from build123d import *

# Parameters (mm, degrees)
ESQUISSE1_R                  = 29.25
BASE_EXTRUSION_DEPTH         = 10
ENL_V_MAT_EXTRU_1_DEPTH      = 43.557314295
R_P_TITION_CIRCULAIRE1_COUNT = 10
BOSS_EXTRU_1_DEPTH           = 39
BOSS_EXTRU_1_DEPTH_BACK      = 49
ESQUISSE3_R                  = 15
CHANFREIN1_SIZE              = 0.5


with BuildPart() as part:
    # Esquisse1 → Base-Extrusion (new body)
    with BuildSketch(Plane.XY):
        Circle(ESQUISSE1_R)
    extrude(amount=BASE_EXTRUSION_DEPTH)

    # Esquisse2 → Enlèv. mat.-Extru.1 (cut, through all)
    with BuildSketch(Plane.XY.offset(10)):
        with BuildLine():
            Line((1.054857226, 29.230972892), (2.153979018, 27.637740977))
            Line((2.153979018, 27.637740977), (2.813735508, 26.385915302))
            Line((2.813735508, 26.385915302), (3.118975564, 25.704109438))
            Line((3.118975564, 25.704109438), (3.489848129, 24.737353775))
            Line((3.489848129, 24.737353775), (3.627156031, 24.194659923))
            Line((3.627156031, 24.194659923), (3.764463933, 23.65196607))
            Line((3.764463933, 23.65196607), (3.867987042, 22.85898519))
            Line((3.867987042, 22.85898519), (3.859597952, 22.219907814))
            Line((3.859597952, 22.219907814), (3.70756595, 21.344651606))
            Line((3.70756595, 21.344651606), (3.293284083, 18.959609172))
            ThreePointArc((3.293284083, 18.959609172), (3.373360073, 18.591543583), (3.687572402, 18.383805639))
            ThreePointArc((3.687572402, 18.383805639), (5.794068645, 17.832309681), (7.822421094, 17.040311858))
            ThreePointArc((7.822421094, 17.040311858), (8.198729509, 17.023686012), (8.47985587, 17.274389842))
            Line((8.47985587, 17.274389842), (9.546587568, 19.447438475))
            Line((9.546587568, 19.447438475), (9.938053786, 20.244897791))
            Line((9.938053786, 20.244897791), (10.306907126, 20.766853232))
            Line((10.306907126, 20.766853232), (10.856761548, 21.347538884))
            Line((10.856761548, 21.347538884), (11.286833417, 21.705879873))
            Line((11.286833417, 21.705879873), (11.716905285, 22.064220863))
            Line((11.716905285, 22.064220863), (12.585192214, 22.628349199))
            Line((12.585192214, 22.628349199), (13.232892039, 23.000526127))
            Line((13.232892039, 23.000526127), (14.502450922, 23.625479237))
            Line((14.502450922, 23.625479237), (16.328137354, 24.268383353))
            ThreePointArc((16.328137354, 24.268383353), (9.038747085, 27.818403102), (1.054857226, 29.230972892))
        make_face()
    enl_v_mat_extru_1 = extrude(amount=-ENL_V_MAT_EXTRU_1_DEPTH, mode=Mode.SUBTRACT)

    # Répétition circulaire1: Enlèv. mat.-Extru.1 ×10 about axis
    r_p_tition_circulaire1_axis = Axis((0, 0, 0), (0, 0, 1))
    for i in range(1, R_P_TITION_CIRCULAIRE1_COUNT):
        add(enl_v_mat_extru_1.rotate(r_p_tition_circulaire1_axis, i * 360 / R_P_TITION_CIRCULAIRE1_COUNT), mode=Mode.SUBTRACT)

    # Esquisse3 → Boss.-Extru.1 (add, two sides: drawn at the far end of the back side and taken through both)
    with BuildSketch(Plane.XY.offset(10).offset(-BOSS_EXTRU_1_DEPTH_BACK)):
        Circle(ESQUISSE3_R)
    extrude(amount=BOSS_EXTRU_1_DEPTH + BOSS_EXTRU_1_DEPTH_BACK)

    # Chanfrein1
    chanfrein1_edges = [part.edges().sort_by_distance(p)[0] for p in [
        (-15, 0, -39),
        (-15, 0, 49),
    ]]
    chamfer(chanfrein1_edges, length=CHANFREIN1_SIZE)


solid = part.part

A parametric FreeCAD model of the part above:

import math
import FreeCAD as App
import Part
import Sketcher
Q = App.Units.Quantity


def edges_at(feature, points):
    """Names of the edges that pass closest to the given points."""
    edges = feature.Shape.Edges
    near = lambda p: min(range(len(edges)), key=lambda i: edges[i].distToShape(Part.Vertex(*p))[0])
    return sorted({f"Edge{near(p) + 1}" for p in points})

doc = App.newDocument("Part")
body = doc.addObject("PartDesign::Body", "Body")

# Sketch on XY plane
sketch1 = body.newObject("Sketcher::SketchObject", "Sketch")
sketch1.AttachmentSupport = (doc.getObject("XY_Plane"), [""])
sketch1.MapMode = "FlatFace"
sketch1.addGeometry(Part.Circle(App.Vector(0, 0, 0), App.Vector(0, 0, 1), 29.25), False)
sketch1.addConstraint([
    Sketcher.Constraint("Coincident", 0, 3, -1, 1),
    Sketcher.Constraint("Diameter", 0, Q("58.5 mm")),
])
pad1 = body.newObject("PartDesign::Pad", "Pad")
pad1.Profile = sketch1
pad1.Length = 10

# Sketch on XY plane
sketch2 = body.newObject("Sketcher::SketchObject", "Sketch001")
sketch2.AttachmentSupport = (doc.getObject("XY_Plane"), [""])
sketch2.MapMode = "FlatFace"
sketch2.AttachmentOffset = App.Placement(App.Vector(0, 0, 10), App.Rotation())
sketch2.addGeometry([
    Part.LineSegment(App.Vector(1.054857, 29.230973, 0), App.Vector(2.153979, 27.637741, 0)),  # 0
    Part.LineSegment(App.Vector(2.153979, 27.637741, 0), App.Vector(2.813736, 26.385915, 0)),  # 1
    Part.LineSegment(App.Vector(2.813736, 26.385915, 0), App.Vector(3.118976, 25.704109, 0)),  # 2
    Part.LineSegment(App.Vector(3.118976, 25.704109, 0), App.Vector(3.489848, 24.737354, 0)),  # 3
    Part.LineSegment(App.Vector(3.489848, 24.737354, 0), App.Vector(3.627156, 24.19466, 0)),  # 4
    Part.LineSegment(App.Vector(3.627156, 24.19466, 0), App.Vector(3.764464, 23.651966, 0)),  # 5
    Part.LineSegment(App.Vector(3.764464, 23.651966, 0), App.Vector(3.867987, 22.858985, 0)),  # 6
    Part.LineSegment(App.Vector(3.867987, 22.858985, 0), App.Vector(3.859598, 22.219908, 0)),  # 7
    Part.LineSegment(App.Vector(3.859598, 22.219908, 0), App.Vector(3.707566, 21.344652, 0)),  # 8
    Part.LineSegment(App.Vector(3.707566, 21.344652, 0), App.Vector(3.293284, 18.959609, 0)),  # 9
    Part.ArcOfCircle(Part.Circle(App.Vector(3.785908, 18.87404, 0), App.Vector(0, 0, 1), 0.5), math.radians(170.146042), math.radians(258.657672)),  # 10
    Part.ArcOfCircle(Part.Circle(App.Vector(0, 0, 0), App.Vector(0, 0, 1), 18.75), math.radians(65.342328), math.radians(78.657672)),  # 11
    Part.ArcOfCircle(Part.Circle(App.Vector(8.031019, 17.49472, 0), App.Vector(0, 0, 1), 0.5), math.radians(-114.657672), math.radians(-26.146042)),  # 12
    Part.LineSegment(App.Vector(8.479856, 17.27439, 0), App.Vector(9.546588, 19.447438, 0)),  # 13
    Part.LineSegment(App.Vector(9.546588, 19.447438, 0), App.Vector(9.938054, 20.244898, 0)),  # 14
    Part.LineSegment(App.Vector(9.938054, 20.244898, 0), App.Vector(10.306907, 20.766853, 0)),  # 15
    Part.LineSegment(App.Vector(10.306907, 20.766853, 0), App.Vector(10.856762, 21.347539, 0)),  # 16
    Part.LineSegment(App.Vector(10.856762, 21.347539, 0), App.Vector(11.286833, 21.70588, 0)),  # 17
    Part.LineSegment(App.Vector(11.286833, 21.70588, 0), App.Vector(11.716905, 22.064221, 0)),  # 18
    Part.LineSegment(App.Vector(11.716905, 22.064221, 0), App.Vector(12.585192, 22.628349, 0)),  # 19
    Part.LineSegment(App.Vector(12.585192, 22.628349, 0), App.Vector(13.232892, 23.000526, 0)),  # 20
    Part.LineSegment(App.Vector(13.232892, 23.000526, 0), App.Vector(14.502451, 23.625479, 0)),  # 21
    Part.LineSegment(App.Vector(14.502451, 23.625479, 0), App.Vector(16.328137, 24.268383, 0)),  # 22
    Part.ArcOfCircle(Part.Circle(App.Vector(0, 0, 0), App.Vector(0, 0, 1), 29.25), math.radians(56.066734), math.radians(87.933266)),  # 23
], False)
sketch2.addConstraint([
    Sketcher.Constraint("Coincident", 0, 2, 1, 1),
    Sketcher.Constraint("Coincident", 1, 2, 2, 1),
    Sketcher.Constraint("Coincident", 2, 2, 3, 1),
    Sketcher.Constraint("Coincident", 3, 2, 4, 1),
    Sketcher.Constraint("Coincident", 4, 2, 5, 1),
    Sketcher.Constraint("Coincident", 5, 2, 6, 1),
    Sketcher.Constraint("Coincident", 6, 2, 7, 1),
    Sketcher.Constraint("Coincident", 7, 2, 8, 1),
    Sketcher.Constraint("Coincident", 8, 2, 9, 1),
    Sketcher.Constraint("Tangent", 9, 2, 10, 1),
    Sketcher.Constraint("Tangent", 10, 2, 11, 2),
    Sketcher.Constraint("Tangent", 11, 1, 12, 1),
    Sketcher.Constraint("Tangent", 12, 2, 13, 1),
    Sketcher.Constraint("Coincident", 13, 2, 14, 1),
    Sketcher.Constraint("Coincident", 14, 2, 15, 1),
    Sketcher.Constraint("Coincident", 15, 2, 16, 1),
    Sketcher.Constraint("Coincident", 16, 2, 17, 1),
    Sketcher.Constraint("Coincident", 17, 2, 18, 1),
    Sketcher.Constraint("Coincident", 18, 2, 19, 1),
    Sketcher.Constraint("Coincident", 19, 2, 20, 1),
    Sketcher.Constraint("Coincident", 20, 2, 21, 1),
    Sketcher.Constraint("Coincident", 21, 2, 22, 1),
    Sketcher.Constraint("Coincident", 22, 2, 23, 1),
    Sketcher.Constraint("Coincident", 23, 2, 0, 1),
    Sketcher.Constraint("Coincident", 11, 3, -1, 1),
    Sketcher.Constraint("Coincident", 23, 3, -1, 1),
    Sketcher.Constraint("Equal", 10, 12),
    Sketcher.Constraint("Parallel", 4, 5),
    Sketcher.Constraint("Parallel", 8, 9),
    Sketcher.Constraint("Parallel", 13, 14),
    Sketcher.Constraint("Parallel", 17, 18),
    Sketcher.Constraint("Equal", 4, 5),
    Sketcher.Constraint("Equal", 9, 13),
    Sketcher.Constraint("Equal", 8, 14),
    Sketcher.Constraint("Equal", 7, 15),
    Sketcher.Constraint("Equal", 6, 16),
    Sketcher.Constraint("Equal", 5, 17),
    Sketcher.Constraint("Equal", 17, 18),
    Sketcher.Constraint("Equal", 3, 19),
    Sketcher.Constraint("Equal", 2, 20),
    Sketcher.Constraint("Equal", 1, 21),
    Sketcher.Constraint("Equal", 0, 22),
    Sketcher.Constraint("Radius", 10, Q("0.5 mm")),
    Sketcher.Constraint("Radius", 11, Q("18.75 mm")),
    Sketcher.Constraint("Radius", 23, Q("29.25 mm")),
    Sketcher.Constraint("DistanceX", 15, 2, 18, 2, Q("1.409998 mm")),
    Sketcher.Constraint("DistanceY", 10, 3, 0, 2, Q("8.763701 mm")),
    Sketcher.Constraint("DistanceY", 9, 2, 7, 2, Q("3.260299 mm")),
    Sketcher.Constraint("DistanceY", 10, 3, 13, 2, Q("0.573398 mm")),
    Sketcher.Constraint("DistanceY", 13, 2, 16, 2, Q("1.9001 mm")),
    Sketcher.Constraint("DistanceX", 19, 2, 20, 2, Q("0.6477 mm")),
    Sketcher.Constraint("DistanceY", 17, 2, 21, 2, Q("1.919599 mm")),
    Sketcher.Constraint("DistanceX", 23, 2, 4, 2, Q("2.572299 mm")),
    Sketcher.Constraint("Distance", 6, Q("0.79971 mm")),
    Sketcher.Constraint("DistanceY", -1, 1, 10, 3, Q("18.87404 mm")),
    Sketcher.Constraint("DistanceX", -1, 1, 12, 3, Q("8.031019 mm")),
    Sketcher.Constraint("DistanceX", -1, 1, 0, 2, Q("2.153979 mm")),
    Sketcher.Constraint("DistanceY", -1, 1, 2, 2, Q("25.704109 mm")),
    Sketcher.Constraint("DistanceX", -1, 1, 3, 2, Q("3.489848 mm")),
    Sketcher.Constraint("DistanceY", -1, 1, 4, 2, Q("24.19466 mm")),
    Sketcher.Constraint("DistanceY", -1, 1, 8, 2, Q("21.344652 mm")),
    Sketcher.Constraint("DistanceY", -1, 1, 9, 2, Q("18.959609 mm")),
    Sketcher.Constraint("DistanceX", -1, 1, 16, 2, Q("10.856762 mm")),
    Sketcher.Constraint("DistanceY", -1, 1, 17, 2, Q("21.70588 mm")),
    Sketcher.Constraint("DistanceY", -1, 1, 19, 2, Q("22.628349 mm")),
    Sketcher.Constraint("DistanceX", -1, 1, 21, 2, Q("14.502451 mm")),
    Sketcher.Constraint("DistanceX", 1, 2, 2, 2, Q("0.30524 mm")),
    Sketcher.Constraint("DistanceY", 3, 2, 1, 2, Q("1.648562 mm")),
    Sketcher.Constraint("DistanceX", 2, 2, 4, 2, Q("0.50818 mm")),
    Sketcher.Constraint("DistanceX", 4, 2, 10, 3, Q("0.158752 mm")),
])
pocket1 = body.newObject("PartDesign::Pocket", "Pocket")
pocket1.Profile = sketch2
pocket1.Type = "ThroughAll"
doc.recompute()

polarpattern = body.newObject("PartDesign::PolarPattern", "PolarPattern")
polarpattern.Originals = [pocket1]
polarpattern.Axis = (doc.getObject("Z_Axis"), [""])
polarpattern.Angle = 360
polarpattern.Occurrences = 10
body.Tip = polarpattern

# Sketch on XY plane
sketch3 = body.newObject("Sketcher::SketchObject", "Sketch002")
sketch3.AttachmentSupport = (doc.getObject("XY_Plane"), [""])
sketch3.MapMode = "FlatFace"
sketch3.AttachmentOffset = App.Placement(App.Vector(0, 0, 10), App.Rotation())
sketch3.addGeometry(Part.Circle(App.Vector(0, 0, 0), App.Vector(0, 0, 1), 15), False)
sketch3.addConstraint([
    Sketcher.Constraint("Coincident", 0, 3, -1, 1),
    Sketcher.Constraint("Diameter", 0, Q("30 mm")),
])
pad2 = body.newObject("PartDesign::Pad", "Pad001")
pad2.Profile = sketch3
pad2.Type = "TwoLengths"
pad2.Length = 39
pad2.Length2 = 49
doc.recompute()

chamfer = body.newObject("PartDesign::Chamfer", "Chamfer")
chamfer.Base = (pad2, edges_at(pad2, [(-15, 0, -39), (-15, 0, 49)]))
chamfer.Size = 0.5

doc.recompute()
